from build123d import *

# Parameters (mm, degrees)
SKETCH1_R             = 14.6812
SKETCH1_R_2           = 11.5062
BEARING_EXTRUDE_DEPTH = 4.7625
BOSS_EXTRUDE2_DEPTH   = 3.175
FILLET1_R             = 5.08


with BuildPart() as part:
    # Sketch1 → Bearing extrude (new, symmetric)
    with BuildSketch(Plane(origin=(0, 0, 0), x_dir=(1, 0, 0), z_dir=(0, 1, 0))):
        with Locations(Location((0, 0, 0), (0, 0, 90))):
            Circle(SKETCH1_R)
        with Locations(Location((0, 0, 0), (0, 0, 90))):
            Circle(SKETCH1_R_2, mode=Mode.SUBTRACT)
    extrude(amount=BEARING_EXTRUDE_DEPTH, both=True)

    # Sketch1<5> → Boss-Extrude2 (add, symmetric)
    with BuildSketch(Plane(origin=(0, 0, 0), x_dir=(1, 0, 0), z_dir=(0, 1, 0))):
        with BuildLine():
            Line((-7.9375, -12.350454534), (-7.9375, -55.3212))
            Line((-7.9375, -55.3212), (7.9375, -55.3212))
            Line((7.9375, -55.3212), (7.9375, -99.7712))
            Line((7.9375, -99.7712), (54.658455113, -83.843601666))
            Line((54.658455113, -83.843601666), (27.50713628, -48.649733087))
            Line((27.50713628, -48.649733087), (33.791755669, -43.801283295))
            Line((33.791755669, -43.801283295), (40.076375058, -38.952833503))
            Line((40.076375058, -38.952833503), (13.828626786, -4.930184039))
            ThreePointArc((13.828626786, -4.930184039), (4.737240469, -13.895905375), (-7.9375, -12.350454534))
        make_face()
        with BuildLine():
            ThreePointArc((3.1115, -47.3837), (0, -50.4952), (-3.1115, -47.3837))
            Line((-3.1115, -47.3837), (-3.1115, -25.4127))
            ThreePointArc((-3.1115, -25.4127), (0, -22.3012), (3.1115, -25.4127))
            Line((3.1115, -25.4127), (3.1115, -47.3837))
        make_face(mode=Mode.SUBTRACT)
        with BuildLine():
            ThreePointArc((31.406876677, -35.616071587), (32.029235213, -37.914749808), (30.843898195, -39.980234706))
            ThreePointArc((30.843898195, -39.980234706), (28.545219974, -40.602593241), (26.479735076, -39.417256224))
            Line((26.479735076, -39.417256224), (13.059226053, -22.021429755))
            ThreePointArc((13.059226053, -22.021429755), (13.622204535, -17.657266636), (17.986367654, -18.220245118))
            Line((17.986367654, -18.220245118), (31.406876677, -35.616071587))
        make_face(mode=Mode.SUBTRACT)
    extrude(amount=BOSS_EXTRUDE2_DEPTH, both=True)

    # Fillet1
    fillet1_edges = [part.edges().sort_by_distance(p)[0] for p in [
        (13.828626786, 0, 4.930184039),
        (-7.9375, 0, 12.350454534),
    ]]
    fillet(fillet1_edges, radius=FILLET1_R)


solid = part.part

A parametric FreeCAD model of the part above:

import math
import FreeCAD as App
import Part
import Sketcher
Q = App.Units.Quantity


def edges_at(feature, points):
    """Names of the edges that pass closest to the given points."""
    edges = feature.Shape.Edges
    near = lambda p: min(range(len(edges)), key=lambda i: edges[i].distToShape(Part.Vertex(*p))[0])
    return sorted({f"Edge{near(p) + 1}" for p in points})

doc = App.newDocument("Part")
params = doc.addObject("Spreadsheet::Sheet", "Params")
for row, (alias, value) in enumerate([
    ("sketch1_diameter", "1.156 in"),
    ("sketch1_diameter2", "0.906 in"),
    ("pad1_length", "0.375 in"),
    ("sketch2_radius", "0.578 in"),
    ("sketch2_height", "1.75 in"),
    ("sketch2_length", "1.75 in"),
    ("sketch2_width", "0.625 in"),
    ("sketch2_height2", "0.865 in"),
    ("pad2_length", "0.25 in"),
    ("fillet_radius", "0.2 in"),
], start=1):
    params.set(f"A{row}", alias)
    params.set(f"B{row}", "=" + value)
    params.setAlias(f"B{row}", alias)

body = doc.addObject("PartDesign::Body", "Body")

# Sketch on XZ plane
sketch1 = body.newObject("Sketcher::SketchObject", "Sketch")
sketch1.AttachmentSupport = (doc.getObject("XZ_Plane"), [""])
sketch1.MapMode = "FlatFace"
sketch1.addGeometry([
    Part.Circle(App.Vector(0, 0, 0), App.Vector(0, 0, 1), 15),
    Part.Circle(App.Vector(0, 0, 0), App.Vector(0, 0, 1), 12),
], False)
sketch1.addConstraint([
    Sketcher.Constraint("Coincident", 0, 3, -1, 1),
    Sketcher.Constraint("Coincident", 1, 3, -1, 1),
    Sketcher.Constraint("Diameter", 0, Q("1.156 in")),
    Sketcher.Constraint("Diameter", 1, Q("0.906 in")),
])
sketch1.setExpression("Constraints[2]", "Params.sketch1_diameter")
sketch1.setExpression("Constraints[3]", "Params.sketch1_diameter2")
pad1 = body.newObject("PartDesign::Pad", "Pad")
pad1.Profile = sketch1
pad1.setExpression("Length", "Params.pad1_length")
pad1.Midplane = True

# Sketch on XZ plane
sketch2 = body.newObject("Sketcher::SketchObject", "Sketch001")
sketch2.AttachmentSupport = (doc.getObject("XZ_Plane"), [""])
sketch2.MapMode = "FlatFace"
sketch2.addGeometry([
    Part.LineSegment(App.Vector(-7.9, 12.4, 0), App.Vector(-7.9, 55.3, 0)),  # 0
    Part.LineSegment(App.Vector(-7.9, 55.3, 0), App.Vector(7.9, 55.3, 0)),  # 1
    Part.LineSegment(App.Vector(7.9, 55.3, 0), App.Vector(7.9, 99.8, 0)),  # 2
    Part.LineSegment(App.Vector(7.9, 99.8, 0), App.Vector(54.7, 83.8, 0)),  # 3
    Part.LineSegment(App.Vector(54.7, 83.8, 0), App.Vector(27.5, 48.6, 0)),  # 4
    Part.LineSegment(App.Vector(27.5, 48.6, 0), App.Vector(40.1, 39, 0)),  # 5
    Part.LineSegment(App.Vector(40.1, 39, 0), App.Vector(13.8, 4.9, 0)),  # 6
    Part.ArcOfCircle(Part.Circle(App.Vector(0, 0, 0), App.Vector(0, 0, 1), 14.7), math.radians(20), math.radians(123)),  # 7
    Part.LineSegment(App.Vector(3.1, 25.4, 0), App.Vector(3.1, 47.4, 0)),  # 8
    Part.ArcOfCircle(Part.Circle(App.Vector(0, 47.4, 0), App.Vector(0, 0, 1), 3.1), math.radians(0), math.radians(180)),  # 9
    Part.LineSegment(App.Vector(-3.1, 47.4, 0), App.Vector(-3.1, 25.4, 0)),  # 10
    Part.ArcOfCircle(Part.Circle(App.Vector(0, 25.4, 0), App.Vector(0, 0, 1), 3.1), math.radians(180), math.radians(360)),  # 11
    Part.LineSegment(App.Vector(18, 18.2, 0), App.Vector(31.4, 35.6, 0)),  # 12
    Part.ArcOfCircle(Part.Circle(App.Vector(28.9, 37.5, 0), App.Vector(0, 0, 1), 3.1), math.radians(-38), math.radians(52)),  # 13
    Part.ArcOfCircle(Part.Circle(App.Vector(28.9, 37.5, 0), App.Vector(0, 0, 1), 3.1), math.radians(52), math.radians(142)),  # 14
    Part.LineSegment(App.Vector(26.5, 39.4, 0), App.Vector(13.1, 22, 0)),  # 15
    Part.ArcOfCircle(Part.Circle(App.Vector(15.5, 20.1, 0), App.Vector(0, 0, 1), 3.1), math.radians(142), math.radians(322)),  # 16
], False)
sketch2.addConstraint([
    Sketcher.Constraint("Coincident", 0, 2, 1, 1),
    Sketcher.Constraint("Coincident", 1, 2, 2, 1),
    Sketcher.Constraint("Coincident", 2, 2, 3, 1),
    Sketcher.Constraint("Coincident", 3, 2, 4, 1),
    Sketcher.Constraint("Coincident", 4, 2, 5, 1),
    Sketcher.Constraint("Coincident", 5, 2, 6, 1),
    Sketcher.Constraint("Coincident", 6, 2, 7, 1),
    Sketcher.Constraint("Coincident", 7, 2, 0, 1),
    Sketcher.Constraint("Tangent", 8, 2, 9, 1),
    Sketcher.Constraint("Tangent", 9, 2, 10, 1),
    Sketcher.Constraint("Tangent", 10, 2, 11, 1),
    Sketcher.Constraint("Tangent", 11, 2, 8, 1),
    Sketcher.Constraint("Tangent", 12, 2, 13, 1),
    Sketcher.Constraint("Tangent", 13, 2, 14, 1),
    Sketcher.Constraint("Tangent", 14, 2, 15, 1),
    Sketcher.Constraint("Tangent", 15, 2, 16, 1),
    Sketcher.Constraint("Tangent", 16, 2, 12, 1),
    Sketcher.Constraint("Vertical", 0),
    Sketcher.Constraint("Horizontal", 1),
    Sketcher.Constraint("Vertical", 2),
    Sketcher.Constraint("Vertical", 8),
    Sketcher.Constraint("Vertical", 10),
    Sketcher.Constraint("Coincident", 7, 3, -1, 1),
    Sketcher.Constraint("Equal", 11, 13),
    Sketcher.Constraint("Equal", 13, 14),
    Sketcher.Constraint("Equal", 14, 16),
    Sketcher.Constraint("PointOnObject", 9, 3, -2),
    Sketcher.Constraint("Perpendicular", 4, 5),
    Sketcher.Constraint("Perpendicular", 5, 6),
    Sketcher.Constraint("Parallel", 6, 12),
    Sketcher.Constraint("Radius", 7, Q("0.578 in")),
    Sketcher.Constraint("DistanceY", 2, 1, 2, 2, Q("1.75 in")),
    Sketcher.Constraint("Radius", 9, Q("0.1225 in")),
    Sketcher.Constraint("Distance", 4, Q("1.75 in")),
    Sketcher.Constraint("DistanceX", 1, 1, 1, 2, Q("0.625 in")),
    Sketcher.Constraint("DistanceY", 8, 1, 8, 2, Q("0.865 in")),
    Sketcher.Constraint("DistanceX", 8, 2, 1, 2, Q("0.19 in")),
    Sketcher.Constraint("Distance", 5, Q("0.625 in")),
    Sketcher.Constraint("Distance", 12, Q("0.865 in")),
    Sketcher.Constraint("DistanceY", -1, 1, 0, 2, Q("2.178 in")),
    Sketcher.Constraint("DistanceY", 9, 3, 0, 2, Q("0.3125 in")),
    Sketcher.Constraint("DistanceY", -1, 1, 3, 2, 83.843602),
    Sketcher.Constraint("DistanceX", -1, 1, 13, 2, 30.843898),
    Sketcher.Constraint("DistanceY", 5, 2, 4, 2, 9.6969),
    Sketcher.Constraint("DistanceX", 12, 2, 5, 2, 8.669498),
    Sketcher.Constraint("DistanceY", 13, 2, 4, 2, 8.669498),
    Sketcher.Constraint("DistanceX", 15, 2, 6, 2, 0.769401),
])
sketch2.setExpression("Constraints[30]", "Params.sketch2_radius")
sketch2.setExpression("Constraints[31]", "Params.sketch2_height")
sketch2.setExpression("Constraints[33]", "Params.sketch2_length")
sketch2.setExpression("Constraints[34]", "Params.sketch2_width")
sketch2.setExpression("Constraints[35]", "Params.sketch2_height2")
pad2 = body.newObject("PartDesign::Pad", "Pad001")
pad2.Profile = sketch2
pad2.setExpression("Length", "Params.pad2_length")
pad2.Midplane = True
doc.recompute()

fillet = body.newObject("PartDesign::Fillet", "Fillet")
fillet.Base = (pad2, edges_at(pad2, [(13.829, 0, 4.93), (-7.938, 0, 12.35)]))
fillet.setExpression("Radius", "Params.fillet_radius")

doc.recompute()
